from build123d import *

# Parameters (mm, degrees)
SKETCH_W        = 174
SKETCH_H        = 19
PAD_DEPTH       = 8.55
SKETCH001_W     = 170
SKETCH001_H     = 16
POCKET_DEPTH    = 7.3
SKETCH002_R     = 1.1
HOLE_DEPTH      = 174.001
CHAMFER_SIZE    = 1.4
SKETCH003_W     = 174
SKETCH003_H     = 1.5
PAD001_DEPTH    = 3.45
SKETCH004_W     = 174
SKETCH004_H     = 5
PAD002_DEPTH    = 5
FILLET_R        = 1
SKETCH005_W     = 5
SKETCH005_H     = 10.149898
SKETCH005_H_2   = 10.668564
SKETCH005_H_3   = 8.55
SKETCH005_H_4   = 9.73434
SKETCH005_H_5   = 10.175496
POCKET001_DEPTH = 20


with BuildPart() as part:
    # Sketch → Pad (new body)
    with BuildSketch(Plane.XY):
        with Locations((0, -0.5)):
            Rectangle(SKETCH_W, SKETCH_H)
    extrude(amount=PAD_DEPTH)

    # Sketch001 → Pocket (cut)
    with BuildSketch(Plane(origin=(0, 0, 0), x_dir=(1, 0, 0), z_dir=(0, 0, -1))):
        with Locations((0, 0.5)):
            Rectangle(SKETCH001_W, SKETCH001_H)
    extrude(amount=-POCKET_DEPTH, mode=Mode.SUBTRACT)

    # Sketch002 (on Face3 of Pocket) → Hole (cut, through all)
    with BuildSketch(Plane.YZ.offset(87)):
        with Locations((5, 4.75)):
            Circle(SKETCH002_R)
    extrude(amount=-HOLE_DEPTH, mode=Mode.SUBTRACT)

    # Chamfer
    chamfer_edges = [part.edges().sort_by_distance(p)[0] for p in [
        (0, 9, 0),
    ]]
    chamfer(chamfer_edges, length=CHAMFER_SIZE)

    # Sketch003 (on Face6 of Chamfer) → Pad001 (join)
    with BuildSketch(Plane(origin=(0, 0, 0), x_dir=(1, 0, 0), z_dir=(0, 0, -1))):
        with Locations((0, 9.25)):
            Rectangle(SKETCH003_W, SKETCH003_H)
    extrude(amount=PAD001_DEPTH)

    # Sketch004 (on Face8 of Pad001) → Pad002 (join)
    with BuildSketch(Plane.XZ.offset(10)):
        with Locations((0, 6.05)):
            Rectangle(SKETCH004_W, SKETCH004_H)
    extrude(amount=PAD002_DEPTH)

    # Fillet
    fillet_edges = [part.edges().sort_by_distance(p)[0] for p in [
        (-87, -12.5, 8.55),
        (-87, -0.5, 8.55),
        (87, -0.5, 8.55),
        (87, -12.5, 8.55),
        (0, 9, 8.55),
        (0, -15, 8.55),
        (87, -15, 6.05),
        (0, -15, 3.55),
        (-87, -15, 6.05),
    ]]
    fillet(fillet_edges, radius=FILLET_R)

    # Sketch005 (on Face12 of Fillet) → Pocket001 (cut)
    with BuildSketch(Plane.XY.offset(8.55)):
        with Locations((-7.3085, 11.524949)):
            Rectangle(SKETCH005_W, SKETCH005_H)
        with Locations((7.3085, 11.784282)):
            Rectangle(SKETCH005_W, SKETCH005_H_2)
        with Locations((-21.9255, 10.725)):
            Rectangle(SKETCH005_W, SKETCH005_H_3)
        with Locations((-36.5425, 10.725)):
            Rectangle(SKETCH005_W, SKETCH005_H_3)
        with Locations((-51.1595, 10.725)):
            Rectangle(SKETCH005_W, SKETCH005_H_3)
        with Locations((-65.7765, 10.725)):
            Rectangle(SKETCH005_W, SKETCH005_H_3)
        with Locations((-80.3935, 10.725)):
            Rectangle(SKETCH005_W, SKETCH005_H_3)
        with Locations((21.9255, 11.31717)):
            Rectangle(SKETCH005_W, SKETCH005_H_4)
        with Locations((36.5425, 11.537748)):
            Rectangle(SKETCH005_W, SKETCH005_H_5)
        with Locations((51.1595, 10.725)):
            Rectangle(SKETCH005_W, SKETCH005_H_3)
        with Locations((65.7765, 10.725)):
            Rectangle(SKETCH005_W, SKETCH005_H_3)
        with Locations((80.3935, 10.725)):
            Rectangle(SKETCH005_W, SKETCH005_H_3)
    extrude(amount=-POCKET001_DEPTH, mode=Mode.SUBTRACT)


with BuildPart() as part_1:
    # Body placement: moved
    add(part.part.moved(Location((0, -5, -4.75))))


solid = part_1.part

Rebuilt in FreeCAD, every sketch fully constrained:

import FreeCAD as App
import Part
import Sketcher

V = App.Vector


def edges_at(feature, points):
    """Names of the edges that pass closest to the given points."""
    edges = feature.Shape.Edges
    near = lambda p: min(range(len(edges)), key=lambda i: edges[i].distToShape(Part.Vertex(*p))[0])
    return sorted({f"Edge{near(p) + 1}" for p in points})


def add_polygon(sketch, points):
    """Adds a closed chain of lines whose ends are joined by coincident constraints."""
    first, n = sketch.GeometryCount, len(points)
    for a, b in zip(points, points[1:] + points[:1]):
        sketch.addGeometry(Part.LineSegment(App.Vector(*a, 0), App.Vector(*b, 0)), False)
    for i in range(n):
        sketch.addConstraint(Sketcher.Constraint("Coincident", first + i, 2, first + (i + 1) % n, 1))

doc = App.newDocument("Part")
params = doc.addObject("Spreadsheet::Sheet", "Params")
for row, (alias, value) in enumerate([
    ("sketch1_width", "174 mm"),
    ("sketch1_height", "19 mm"),
    ("pad1_length", "8.55 mm"),
    ("sketch2_width", "170 mm"),
    ("sketch2_height", "16 mm"),
    ("pocket1_length", "7.3 mm"),
    ("sketch3_diameter", "2.2 mm"),
    ("chamfer_size", "1.4 mm"),
    ("sketch4_width", "174 mm"),
    ("sketch4_height", "1.5 mm"),
    ("pad2_length", "3.45 mm"),
    ("sketch5_width", "174 mm"),
    ("sketch5_height", "5 mm"),
    ("pad3_length", "5 mm"),
    ("fillet_radius", "1 mm"),
    ("sketch6_width", "5 mm"),
    ("sketch6_height", "8.55 mm"),
    ("pocket3_length", "20 mm"),
], start=1):
    params.set(f"A{row}", alias)
    params.set(f"B{row}", "=" + value)
    params.setAlias(f"B{row}", alias)

body = doc.addObject("PartDesign::Body", "Body")

# Sketch on XY plane
sketch1 = body.newObject("Sketcher::SketchObject", "Sketch")
sketch1.AttachmentSupport = (doc.getObject("XY_Plane"), [""])
sketch1.MapMode = "FlatFace"
add_polygon(sketch1, [(-87, 9), (-87, -10), (87, -10), (87, 9)])  # lines 0-3
sketch1.addConstraint(Sketcher.Constraint("Vertical", 0))
sketch1.addConstraint(Sketcher.Constraint("Horizontal", 1))
sketch1.addConstraint(Sketcher.Constraint("Vertical", 2))
sketch1.addConstraint(Sketcher.Constraint("Horizontal", 3))
sketch1.addConstraint(Sketcher.Constraint("DistanceX", 1, 1, 1, 2, 174.0))
sketch1.addConstraint(Sketcher.Constraint("DistanceY", 0, 2, 0, 1, 19.0))
sketch1.addConstraint(Sketcher.Constraint("DistanceX", 0, 2, -1, 1, 87.0))
sketch1.addConstraint(Sketcher.Constraint("DistanceY", 0, 2, -1, 1, 10.0))
sketch1.setExpression("Constraints[8]", "Params.sketch1_width")
sketch1.setExpression("Constraints[9]", "Params.sketch1_height")
pad1 = body.newObject("PartDesign::Pad", "Pad")
pad1.Profile = sketch1
pad1.setExpression("Length", "Params.pad1_length")

# Sketch on XY plane
sketch2 = body.newObject("Sketcher::SketchObject", "Sketch001")
sketch2.AttachmentSupport = (doc.getObject("XY_Plane"), [""])
sketch2.MapMode = "FlatFace"
add_polygon(sketch2, [(-85, -8), (-85, 8), (85, 8), (85, -8)])  # lines 0-3
sketch2.addConstraint(Sketcher.Constraint("Vertical", 0))
sketch2.addConstraint(Sketcher.Constraint("Horizontal", 1))
sketch2.addConstraint(Sketcher.Constraint("Vertical", 2))
sketch2.addConstraint(Sketcher.Constraint("Horizontal", 3))
sketch2.addConstraint(Sketcher.Constraint("DistanceX", 1, 1, 1, 2, 170.0))
sketch2.addConstraint(Sketcher.Constraint("DistanceY", 0, 1, 0, 2, 16.0))
sketch2.addConstraint(Sketcher.Constraint("DistanceX", 0, 2, -1, 1, 85.0))
sketch2.addConstraint(Sketcher.Constraint("DistanceY", -1, 1, 0, 2, 7.5))
sketch2.setExpression("Constraints[8]", "Params.sketch2_width")
sketch2.setExpression("Constraints[9]", "Params.sketch2_height")
pocket1 = body.newObject("PartDesign::Pocket", "Pocket")
pocket1.Profile = sketch2
pocket1.setExpression("Length", "Params.pocket1_length")
pocket1.Reversed = True

# Sketch on YZ plane
sketch3 = body.newObject("Sketcher::SketchObject", "Sketch002")
sketch3.AttachmentSupport = (doc.getObject("YZ_Plane"), [""])
sketch3.MapMode = "FlatFace"
sketch3.AttachmentOffset = App.Placement(V(0, 0, 87), App.Rotation())
sketch3.addGeometry(Part.Circle(V(5, 4.8, 0), V(0, 0, 1), 1.1), False)
sketch3.addConstraint(Sketcher.Constraint("Diameter", 0, 2.2))
sketch3.addConstraint(Sketcher.Constraint("DistanceX", -1, 1, 0, 3, 5.0))
sketch3.addConstraint(Sketcher.Constraint("DistanceY", -1, 1, 0, 3, 4.75))
sketch3.setExpression("Constraints[0]", "Params.sketch3_diameter")
pocket2 = body.newObject("PartDesign::Pocket", "Pocket001")
pocket2.Profile = sketch3
pocket2.Type = "ThroughAll"
doc.recompute()

chamfer = body.newObject("PartDesign::Chamfer", "Chamfer")
chamfer.Base = (pocket2, edges_at(pocket2, [(0, 9, 0)]))
chamfer.setExpression("Size", "Params.chamfer_size")

# Sketch on XY plane
sketch4 = body.newObject("Sketcher::SketchObject", "Sketch003")
sketch4.AttachmentSupport = (doc.getObject("XY_Plane"), [""])
sketch4.MapMode = "FlatFace"
add_polygon(sketch4, [(-87, -10), (-87, -8.5), (87, -8.5), (87, -10)])  # lines 0-3
sketch4.addConstraint(Sketcher.Constraint("Vertical", 0))
sketch4.addConstraint(Sketcher.Constraint("Horizontal", 1))
sketch4.addConstraint(Sketcher.Constraint("Vertical", 2))
sketch4.addConstraint(Sketcher.Constraint("Horizontal", 3))
sketch4.addConstraint(Sketcher.Constraint("DistanceX", 1, 1, 1, 2, 174.0))
sketch4.addConstraint(Sketcher.Constraint("DistanceY", 0, 1, 0, 2, 1.5))
sketch4.addConstraint(Sketcher.Constraint("DistanceX", 0, 2, -1, 1, 87.0))
sketch4.addConstraint(Sketcher.Constraint("DistanceY", 2, 2, -1, 1, 10.0))
sketch4.setExpression("Constraints[8]", "Params.sketch4_width")
sketch4.setExpression("Constraints[9]", "Params.sketch4_height")
pad2 = body.newObject("PartDesign::Pad", "Pad001")
pad2.Profile = sketch4
pad2.setExpression("Length", "Params.pad2_length")
pad2.Reversed = True

# Sketch on XZ plane
sketch5 = body.newObject("Sketcher::SketchObject", "Sketch004")
sketch5.AttachmentSupport = (doc.getObject("XZ_Plane"), [""])
sketch5.MapMode = "FlatFace"
sketch5.AttachmentOffset = App.Placement(V(0, 0, 10), App.Rotation())
add_polygon(sketch5, [(-87, 9), (-87, 4), (87, 4), (87, 9)])  # lines 0-3
sketch5.addConstraint(Sketcher.Constraint("Vertical", 0))
sketch5.addConstraint(Sketcher.Constraint("Horizontal", 1))
sketch5.addConstraint(Sketcher.Constraint("Vertical", 2))
sketch5.addConstraint(Sketcher.Constraint("Horizontal", 3))
sketch5.addConstraint(Sketcher.Constraint("DistanceX", 1, 1, 1, 2, 174.0))
sketch5.addConstraint(Sketcher.Constraint("DistanceY", 0, 2, 0, 1, 5.0))
sketch5.addConstraint(Sketcher.Constraint("DistanceX", 0, 2, -1, 1, 87.0))
sketch5.addConstraint(Sketcher.Constraint("DistanceY", -1, 1, 0, 2, 3.55))
sketch5.setExpression("Constraints[8]", "Params.sketch5_width")
sketch5.setExpression("Constraints[9]", "Params.sketch5_height")
pad3 = body.newObject("PartDesign::Pad", "Pad002")
pad3.Profile = sketch5
pad3.setExpression("Length", "Params.pad3_length")
doc.recompute()

fillet = body.newObject("PartDesign::Fillet", "Fillet")
fillet.Base = (pad3, edges_at(pad3, [
    (-87, -3, 8.55),
    (-87, -3, 8.55),
    (87, -3, 8.55),
    (87, -3, 8.55),
    (0, 9, 8.55),
    (0, -15, 8.55),
    (87, -15, 6.05),
    (0, -15, 3.55),
    (-87, -15, 6.05),
]))
fillet.setExpression("Radius", "Params.fillet_radius")

# Sketch on XY plane
sketch6 = body.newObject("Sketcher::SketchObject", "Sketch005")
sketch6.AttachmentSupport = (doc.getObject("XY_Plane"), [""])
sketch6.MapMode = "FlatFace"
sketch6.AttachmentOffset = App.Placement(V(0, 0, 8.55), App.Rotation())
add_polygon(sketch6, [(-10, 17), (-10, 6), (-5, 6), (-5, 17)])  # lines 0-3
add_polygon(sketch6, [(5, 17), (5, 6), (10, 6), (10, 17)])  # lines 4-7
add_polygon(sketch6, [(-24, 15), (-24, 6), (-19, 6), (-19, 15)])  # lines 8-11
add_polygon(sketch6, [(-39, 15), (-39, 6), (-34, 6), (-34, 15)])  # lines 12-15
add_polygon(sketch6, [(-54, 15), (-54, 6), (-49, 6), (-49, 15)])  # lines 16-19
add_polygon(sketch6, [(-68, 15), (-68, 6), (-63, 6), (-63, 15)])  # lines 20-23
add_polygon(sketch6, [(-83, 15), (-83, 6), (-78, 6), (-78, 15)])  # lines 24-27
add_polygon(sketch6, [(19, 16), (19, 6), (24, 6), (24, 16)])  # lines 28-31
add_polygon(sketch6, [(34, 17), (34, 6), (39, 6), (39, 17)])  # lines 32-35
add_polygon(sketch6, [(49, 15), (49, 6), (54, 6), (54, 15)])  # lines 36-39
add_polygon(sketch6, [(63, 15), (63, 6), (68, 6), (68, 15)])  # lines 40-43
add_polygon(sketch6, [(78, 15), (78, 6), (83, 6), (83, 15)])  # lines 44-47
sketch6.addConstraint(Sketcher.Constraint("Vertical", 0))
sketch6.addConstraint(Sketcher.Constraint("Horizontal", 1))
sketch6.addConstraint(Sketcher.Constraint("Vertical", 2))
sketch6.addConstraint(Sketcher.Constraint("Horizontal", 3))
sketch6.addConstraint(Sketcher.Constraint("Vertical", 4))
sketch6.addConstraint(Sketcher.Constraint("Horizontal", 5))
sketch6.addConstraint(Sketcher.Constraint("Vertical", 6))
sketch6.addConstraint(Sketcher.Constraint("Horizontal", 7))
sketch6.addConstraint(Sketcher.Constraint("Vertical", 8))
sketch6.addConstraint(Sketcher.Constraint("Horizontal", 9))
sketch6.addConstraint(Sketcher.Constraint("Vertical", 10))
sketch6.addConstraint(Sketcher.Constraint("Horizontal", 11))
sketch6.addConstraint(Sketcher.Constraint("Vertical", 12))
sketch6.addConstraint(Sketcher.Constraint("Horizontal", 13))
sketch6.addConstraint(Sketcher.Constraint("Vertical", 14))
sketch6.addConstraint(Sketcher.Constraint("Horizontal", 15))
sketch6.addConstraint(Sketcher.Constraint("Vertical", 16))
sketch6.addConstraint(Sketcher.Constraint("Horizontal", 17))
sketch6.addConstraint(Sketcher.Constraint("Vertical", 18))
sketch6.addConstraint(Sketcher.Constraint("Horizontal", 19))
sketch6.addConstraint(Sketcher.Constraint("Vertical", 20))
sketch6.addConstraint(Sketcher.Constraint("Horizontal", 21))
sketch6.addConstraint(Sketcher.Constraint("Vertical", 22))
sketch6.addConstraint(Sketcher.Constraint("Horizontal", 23))
sketch6.addConstraint(Sketcher.Constraint("Vertical", 24))
sketch6.addConstraint(Sketcher.Constraint("Horizontal", 25))
sketch6.addConstraint(Sketcher.Constraint("Vertical", 26))
sketch6.addConstraint(Sketcher.Constraint("Horizontal", 27))
sketch6.addConstraint(Sketcher.Constraint("Vertical", 28))
sketch6.addConstraint(Sketcher.Constraint("Horizontal", 29))
sketch6.addConstraint(Sketcher.Constraint("Vertical", 30))
sketch6.addConstraint(Sketcher.Constraint("Horizontal", 31))
sketch6.addConstraint(Sketcher.Constraint("Vertical", 32))
sketch6.addConstraint(Sketcher.Constraint("Horizontal", 33))
sketch6.addConstraint(Sketcher.Constraint("Vertical", 34))
sketch6.addConstraint(Sketcher.Constraint("Horizontal", 35))
sketch6.addConstraint(Sketcher.Constraint("Vertical", 36))
sketch6.addConstraint(Sketcher.Constraint("Horizontal", 37))
sketch6.addConstraint(Sketcher.Constraint("Vertical", 38))
sketch6.addConstraint(Sketcher.Constraint("Horizontal", 39))
sketch6.addConstraint(Sketcher.Constraint("Vertical", 40))
sketch6.addConstraint(Sketcher.Constraint("Horizontal", 41))
sketch6.addConstraint(Sketcher.Constraint("Vertical", 42))
sketch6.addConstraint(Sketcher.Constraint("Horizontal", 43))
sketch6.addConstraint(Sketcher.Constraint("Vertical", 44))
sketch6.addConstraint(Sketcher.Constraint("Horizontal", 45))
sketch6.addConstraint(Sketcher.Constraint("Vertical", 46))
sketch6.addConstraint(Sketcher.Constraint("Horizontal", 47))
sketch6.addConstraint(Sketcher.Constraint("Symmetric", 1, 2, 4, 2, -2))
sketch6.addConstraint(Sketcher.Constraint("Symmetric", 9, 2, 28, 2, -2))
sketch6.addConstraint(Sketcher.Constraint("Symmetric", 13, 2, 32, 2, -2))
sketch6.addConstraint(Sketcher.Constraint("Symmetric", 17, 2, 36, 2, -2))
sketch6.addConstraint(Sketcher.Constraint("Symmetric", 19, 2, 38, 2, -2))
sketch6.addConstraint(Sketcher.Constraint("Symmetric", 21, 2, 40, 2, -2))
sketch6.addConstraint(Sketcher.Constraint("Symmetric", 23, 2, 42, 2, -2))
sketch6.addConstraint(Sketcher.Constraint("Symmetric", 25, 2, 44, 2, -2))
sketch6.addConstraint(Sketcher.Constraint("Symmetric", 27, 2, 46, 2, -2))
sketch6.addConstraint(Sketcher.Constraint("Horizontal", 5, 2, 8, 2))
sketch6.addConstraint(Sketcher.Constraint("Horizontal", 9, 2, 12, 2))
sketch6.addConstraint(Sketcher.Constraint("Horizontal", 11, 2, 14, 2))
sketch6.addConstraint(Sketcher.Constraint("Horizontal", 13, 2, 16, 2))
sketch6.addConstraint(Sketcher.Constraint("Horizontal", 15, 2, 18, 2))
sketch6.addConstraint(Sketcher.Constraint("Horizontal", 17, 2, 20, 2))
sketch6.addConstraint(Sketcher.Constraint("Horizontal", 19, 2, 22, 2))
sketch6.addConstraint(Sketcher.Constraint("Horizontal", 21, 2, 24, 2))
sketch6.addConstraint(Sketcher.Constraint("Horizontal", 23, 2, 26, 2))
sketch6.addConstraint(Sketcher.Constraint("Equal", 3, 5))
sketch6.addConstraint(Sketcher.Constraint("Equal", 7, 9))
sketch6.addConstraint(Sketcher.Constraint("Equal", 11, 13))
sketch6.addConstraint(Sketcher.Constraint("Equal", 15, 17))
sketch6.addConstraint(Sketcher.Constraint("Equal", 19, 21))
sketch6.addConstraint(Sketcher.Constraint("Equal", 23, 25))
sketch6.addConstraint(Sketcher.Constraint("Equal", 27, 29))
sketch6.addConstraint(Sketcher.Constraint("Equal", 31, 33))
sketch6.addConstraint(Sketcher.Constraint("DistanceX", 1, 1, 1, 2, 5.0))
sketch6.addConstraint(Sketcher.Constraint("DistanceY", -1, 1, 10, 2, 15.0))
sketch6.addConstraint(Sketcher.Constraint("DistanceY", 8, 2, 8, 1, 8.55))
sketch6.addConstraint(Sketcher.Constraint("DistanceX", 1, 2, 4, 2, 9.617))
sketch6.addConstraint(Sketcher.Constraint("DistanceX", 8, 2, 0, 2, 14.617))
sketch6.addConstraint(Sketcher.Constraint("DistanceX", 12, 2, 8, 2, 14.617))
sketch6.addConstraint(Sketcher.Constraint("DistanceX", 16, 2, 12, 2, 14.617))
sketch6.addConstraint(Sketcher.Constraint("DistanceX", 20, 2, 16, 2, 14.617))
sketch6.addConstraint(Sketcher.Constraint("DistanceX", 24, 2, 20, 2, 14.617))
sketch6.addConstraint(Sketcher.Constraint("DistanceY", 28, 2, 28, 1, 9.73434))
sketch6.addConstraint(Sketcher.Constraint("DistanceY", 0, 2, 0, 1, 10.149898))
sketch6.addConstraint(Sketcher.Constraint("DistanceY", 4, 2, 4, 1, 10.668564))
sketch6.addConstraint(Sketcher.Constraint("DistanceY", 32, 2, 32, 1, 10.175496))
sketch6.setExpression("Constraints[122]", "Params.sketch6_width")
sketch6.setExpression("Constraints[124]", "Params.sketch6_height")
pocket3 = body.newObject("PartDesign::Pocket", "Pocket002")
pocket3.Profile = sketch6
pocket3.setExpression("Length", "Params.pocket3_length")
body2 = doc.addObject("PartDesign::Body", "Body001")
doc.recompute()

body.Placement = App.Placement(V(0, -5, -4.75), App.Rotation(V(0, 0, 1), 0))
boolean = body2.newObject("PartDesign::Boolean", "Boolean")
boolean.Type = "Fuse"
boolean.addObjects([body])

doc.recompute()
